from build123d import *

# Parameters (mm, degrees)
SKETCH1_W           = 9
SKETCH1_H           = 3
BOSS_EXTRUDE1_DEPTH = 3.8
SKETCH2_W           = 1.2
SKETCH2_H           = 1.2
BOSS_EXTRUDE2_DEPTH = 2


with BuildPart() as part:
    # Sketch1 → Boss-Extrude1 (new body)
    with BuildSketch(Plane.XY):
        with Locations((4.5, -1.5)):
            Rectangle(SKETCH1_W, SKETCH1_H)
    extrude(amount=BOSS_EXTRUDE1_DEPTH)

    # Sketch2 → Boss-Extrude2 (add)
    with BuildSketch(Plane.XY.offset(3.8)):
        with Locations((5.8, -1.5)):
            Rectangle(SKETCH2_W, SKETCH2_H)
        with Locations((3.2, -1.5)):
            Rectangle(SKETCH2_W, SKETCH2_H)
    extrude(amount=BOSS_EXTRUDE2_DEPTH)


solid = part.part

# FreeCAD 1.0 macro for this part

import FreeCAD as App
import Part
import Sketcher

V = App.Vector

doc = App.newDocument("Part")
body = doc.addObject("PartDesign::Body", "Body")

# Sketch on XY plane
sketch1 = body.newObject("Sketcher::SketchObject", "Sketch")
sketch1.AttachmentSupport = (doc.getObject("XY_Plane"), [""])
sketch1.MapMode = "FlatFace"
sketch1.addGeometry([
    Part.LineSegment(V(0, 0, 0), V(0, -3, 0)),
    Part.LineSegment(V(0, -3, 0), V(9, -3, 0)),
    Part.LineSegment(V(9, -3, 0), V(9, 0, 0)),
    Part.LineSegment(V(9, 0, 0), V(0, 0, 0)),
], False)
sketch1.addConstraint([
    Sketcher.Constraint("Coincident", 0, 2, 1, 1),
    Sketcher.Constraint("Coincident", 1, 2, 2, 1),
    Sketcher.Constraint("Coincident", 2, 2, 3, 1),
    Sketcher.Constraint("Coincident", 3, 2, 0, 1),
    Sketcher.Constraint("Vertical", 0),
    Sketcher.Constraint("Horizontal", 1),
    Sketcher.Constraint("Vertical", 2),
    Sketcher.Constraint("Horizontal", 3),
    Sketcher.Constraint("Coincident", 3, 2, -1, 1),
    Sketcher.Constraint("DistanceX", 1, 1, 1, 2, 9.0),
    Sketcher.Constraint("DistanceY", 0, 2, 0, 1, 3.0),
])
pad1 = body.newObject("PartDesign::Pad", "Pad")
pad1.Profile = sketch1
pad1.Length = 3.8

# Sketch on XY plane
sketch2 = body.newObject("Sketcher::SketchObject", "Sketch001")
sketch2.AttachmentSupport = (doc.getObject("XY_Plane"), [""])
sketch2.MapMode = "FlatFace"
sketch2.AttachmentOffset = App.Placement(V(0, 0, 3.8), App.Rotation())
sketch2.addGeometry([
    Part.LineSegment(V(5.2, -0.9, 0), V(5.2, -2.1, 0)),  # 0
    Part.LineSegment(V(5.2, -2.1, 0), V(6.4, -2.1, 0)),  # 1
    Part.LineSegment(V(6.4, -2.1, 0), V(6.4, -0.9, 0)),  # 2
    Part.LineSegment(V(6.4, -0.9, 0), V(5.2, -0.9, 0)),  # 3
    Part.LineSegment(V(2.6, -0.9, 0), V(2.6, -2.1, 0)),  # 4
    Part.LineSegment(V(2.6, -2.1, 0), V(3.8, -2.1, 0)),  # 5
    Part.LineSegment(V(3.8, -2.1, 0), V(3.8, -0.9, 0)),  # 6
    Part.LineSegment(V(3.8, -0.9, 0), V(2.6, -0.9, 0)),  # 7
], False)
sketch2.addConstraint([
    Sketcher.Constraint("Coincident", 0, 2, 1, 1),
    Sketcher.Constraint("Coincident", 1, 2, 2, 1),
    Sketcher.Constraint("Coincident", 2, 2, 3, 1),
    Sketcher.Constraint("Coincident", 3, 2, 0, 1),
    Sketcher.Constraint("Coincident", 4, 2, 5, 1),
    Sketcher.Constraint("Coincident", 5, 2, 6, 1),
    Sketcher.Constraint("Coincident", 6, 2, 7, 1),
    Sketcher.Constraint("Coincident", 7, 2, 4, 1),
    Sketcher.Constraint("Vertical", 0),
    Sketcher.Constraint("Horizontal", 1),
    Sketcher.Constraint("Vertical", 2),
    Sketcher.Constraint("Horizontal", 3),
    Sketcher.Constraint("Vertical", 4),
    Sketcher.Constraint("Horizontal", 5),
    Sketcher.Constraint("Vertical", 6),
    Sketcher.Constraint("Horizontal", 7),
    Sketcher.Constraint("Horizontal", 1, 2, 4, 2),
    Sketcher.Constraint("Horizontal", 3, 2, 6, 2),
    Sketcher.Constraint("Equal", 3, 5),
    Sketcher.Constraint("Equal", 7, 0),
    Sketcher.Constraint("DistanceX", 1, 1, 1, 2, 1.2),
    Sketcher.Constraint("DistanceX", -1, 1, 0, 2, 5.2),
    Sketcher.Constraint("DistanceY", 0, 2, -1, 1, 2.1),
    Sketcher.Constraint("DistanceX", -1, 1, 4, 2, 2.6),
])
pad2 = body.newObject("PartDesign::Pad", "Pad001")
pad2.Profile = sketch2
pad2.Length = 2

doc.recompute()
